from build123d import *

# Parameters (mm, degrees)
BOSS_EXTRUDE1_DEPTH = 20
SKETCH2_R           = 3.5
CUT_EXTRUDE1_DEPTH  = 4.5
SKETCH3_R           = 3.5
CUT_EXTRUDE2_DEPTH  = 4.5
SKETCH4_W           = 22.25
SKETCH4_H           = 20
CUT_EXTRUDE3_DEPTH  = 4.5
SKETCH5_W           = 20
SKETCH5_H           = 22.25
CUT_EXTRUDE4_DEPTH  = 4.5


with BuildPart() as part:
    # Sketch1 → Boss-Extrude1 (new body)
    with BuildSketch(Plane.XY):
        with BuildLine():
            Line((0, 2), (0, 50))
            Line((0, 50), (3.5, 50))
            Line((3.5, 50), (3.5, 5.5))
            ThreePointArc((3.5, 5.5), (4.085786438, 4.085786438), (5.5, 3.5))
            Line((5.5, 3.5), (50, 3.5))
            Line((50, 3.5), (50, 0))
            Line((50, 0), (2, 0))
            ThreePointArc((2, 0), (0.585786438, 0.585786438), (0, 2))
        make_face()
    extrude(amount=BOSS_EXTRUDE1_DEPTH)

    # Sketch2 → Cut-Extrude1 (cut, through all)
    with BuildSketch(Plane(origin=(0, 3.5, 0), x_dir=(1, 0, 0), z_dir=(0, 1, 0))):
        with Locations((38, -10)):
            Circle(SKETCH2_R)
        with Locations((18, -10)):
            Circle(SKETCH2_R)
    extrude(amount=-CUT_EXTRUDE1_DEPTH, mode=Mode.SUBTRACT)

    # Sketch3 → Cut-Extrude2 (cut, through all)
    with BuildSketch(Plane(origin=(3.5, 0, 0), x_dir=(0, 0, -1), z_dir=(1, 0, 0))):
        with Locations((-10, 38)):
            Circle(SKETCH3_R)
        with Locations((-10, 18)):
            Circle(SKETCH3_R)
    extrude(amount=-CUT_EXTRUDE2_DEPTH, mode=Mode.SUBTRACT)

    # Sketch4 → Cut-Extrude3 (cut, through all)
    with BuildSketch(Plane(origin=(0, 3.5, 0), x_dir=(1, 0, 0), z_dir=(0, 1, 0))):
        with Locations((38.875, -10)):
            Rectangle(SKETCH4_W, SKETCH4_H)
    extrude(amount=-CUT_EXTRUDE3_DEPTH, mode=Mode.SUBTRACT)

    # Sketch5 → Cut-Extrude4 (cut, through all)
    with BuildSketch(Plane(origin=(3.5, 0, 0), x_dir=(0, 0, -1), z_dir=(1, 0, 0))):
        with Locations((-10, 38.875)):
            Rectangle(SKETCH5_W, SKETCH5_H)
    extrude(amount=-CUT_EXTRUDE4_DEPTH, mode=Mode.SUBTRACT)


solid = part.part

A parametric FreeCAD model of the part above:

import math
import FreeCAD as App
import Part
import Sketcher


def add_polygon(sketch, points):
    """Adds a closed chain of lines whose ends are joined by coincident constraints."""
    first, n = sketch.GeometryCount, len(points)
    for a, b in zip(points, points[1:] + points[:1]):
        sketch.addGeometry(Part.LineSegment(App.Vector(*a, 0), App.Vector(*b, 0)), False)
    for i in range(n):
        sketch.addConstraint(Sketcher.Constraint("Coincident", first + i, 2, first + (i + 1) % n, 1))

doc = App.newDocument("Part")
body = doc.addObject("PartDesign::Body", "Body")

# Sketch on XY plane
sketch1 = body.newObject("Sketcher::SketchObject", "Sketch")
sketch1.AttachmentSupport = (doc.getObject("XY_Plane"), [""])
sketch1.MapMode = "FlatFace"
sketch1.addGeometry(Part.LineSegment(App.Vector(0, 50, 0), App.Vector(0, 2, 0)), False)
sketch1.addGeometry(Part.ArcOfCircle(Part.Circle(App.Vector(2, 2, 0), App.Vector(0, 0, 1), 2), math.radians(-180), math.radians(-90)), False)
sketch1.addGeometry(Part.LineSegment(App.Vector(2, 0, 0), App.Vector(50, 0, 0)), False)
sketch1.addGeometry(Part.LineSegment(App.Vector(50, 0, 0), App.Vector(50, 3.5, 0)), False)
sketch1.addGeometry(Part.LineSegment(App.Vector(50, 3.5, 0), App.Vector(5.5, 3.5, 0)), False)
sketch1.addGeometry(Part.ArcOfCircle(Part.Circle(App.Vector(5.5, 5.5, 0), App.Vector(0, 0, 1), 2), math.radians(-180), math.radians(-90)), False)
sketch1.addGeometry(Part.LineSegment(App.Vector(3.5, 5.5, 0), App.Vector(3.5, 50, 0)), False)
sketch1.addGeometry(Part.LineSegment(App.Vector(3.5, 50, 0), App.Vector(0, 50, 0)), False)
sketch1.addConstraint(Sketcher.Constraint("Tangent", 0, 2, 1, 1))
sketch1.addConstraint(Sketcher.Constraint("Tangent", 1, 2, 2, 1))
sketch1.addConstraint(Sketcher.Constraint("Coincident", 2, 2, 3, 1))
sketch1.addConstraint(Sketcher.Constraint("Coincident", 3, 2, 4, 1))
sketch1.addConstraint(Sketcher.Constraint("Tangent", 4, 2, 5, 2))
sketch1.addConstraint(Sketcher.Constraint("Tangent", 5, 1, 6, 1))
sketch1.addConstraint(Sketcher.Constraint("Coincident", 6, 2, 7, 1))
sketch1.addConstraint(Sketcher.Constraint("Coincident", 7, 2, 0, 1))
sketch1.addConstraint(Sketcher.Constraint("Vertical", 0))
sketch1.addConstraint(Sketcher.Constraint("Horizontal", 2))
sketch1.addConstraint(Sketcher.Constraint("Vertical", 3))
sketch1.addConstraint(Sketcher.Constraint("Horizontal", 4))
sketch1.addConstraint(Sketcher.Constraint("Vertical", 6))
sketch1.addConstraint(Sketcher.Constraint("Horizontal", 7))
sketch1.addConstraint(Sketcher.Constraint("Equal", 1, 5))
sketch1.addConstraint(Sketcher.Constraint("PointOnObject", 0, 2, -2))
sketch1.addConstraint(Sketcher.Constraint("PointOnObject", 1, 2, -1))
sketch1.addConstraint(Sketcher.Constraint("Equal", 2, 0))
sketch1.addConstraint(Sketcher.Constraint("Equal", 7, 3))
sketch1.addConstraint(Sketcher.Constraint("Radius", 1, 2.0))
sketch1.addConstraint(Sketcher.Constraint("DistanceX", 2, 1, 2, 2, 48.0))
sketch1.addConstraint(Sketcher.Constraint("DistanceX", 4, 2, 4, 1, 44.5))
pad1 = body.newObject("PartDesign::Pad", "Pad")
pad1.Profile = sketch1
pad1.Length = 20

# Sketch on XZ plane
sketch2 = body.newObject("Sketcher::SketchObject", "Sketch001")
sketch2.AttachmentSupport = (doc.getObject("XZ_Plane"), [""])
sketch2.MapMode = "FlatFace"
sketch2.AttachmentOffset = App.Placement(App.Vector(0, 0, -3.5), App.Rotation())
sketch2.addGeometry(Part.Circle(App.Vector(38, 10, 0), App.Vector(0, 0, 1), 3.5), False)
sketch2.addGeometry(Part.Circle(App.Vector(18, 10, 0), App.Vector(0, 0, 1), 3.5), False)
sketch2.addConstraint(Sketcher.Constraint("Equal", 0, 1))
sketch2.addConstraint(Sketcher.Constraint("Horizontal", 0, 3, 1, 3))
sketch2.addConstraint(Sketcher.Constraint("Diameter", 0, 7.0))
sketch2.addConstraint(Sketcher.Constraint("DistanceX", -1, 1, 0, 3, 38.0))
sketch2.addConstraint(Sketcher.Constraint("DistanceY", -1, 1, 0, 3, 10.0))
sketch2.addConstraint(Sketcher.Constraint("DistanceX", -1, 1, 1, 3, 18.0))
pocket1 = body.newObject("PartDesign::Pocket", "Pocket")
pocket1.Profile = sketch2
pocket1.Type = "ThroughAll"
pocket1.Reversed = True

# Sketch on YZ plane
sketch3 = body.newObject("Sketcher::SketchObject", "Sketch002")
sketch3.AttachmentSupport = (doc.getObject("YZ_Plane"), [""])
sketch3.MapMode = "FlatFace"
sketch3.AttachmentOffset = App.Placement(App.Vector(0, 0, 3.5), App.Rotation())
sketch3.addGeometry(Part.Circle(App.Vector(38, 10, 0), App.Vector(0, 0, 1), 3.5), False)
sketch3.addGeometry(Part.Circle(App.Vector(18, 10, 0), App.Vector(0, 0, 1), 3.5), False)
sketch3.addConstraint(Sketcher.Constraint("Equal", 0, 1))
sketch3.addConstraint(Sketcher.Constraint("Horizontal", 0, 3, 1, 3))
sketch3.addConstraint(Sketcher.Constraint("Diameter", 0, 7.0))
sketch3.addConstraint(Sketcher.Constraint("DistanceX", -1, 1, 0, 3, 38.0))
sketch3.addConstraint(Sketcher.Constraint("DistanceY", -1, 1, 0, 3, 10.0))
sketch3.addConstraint(Sketcher.Constraint("DistanceX", -1, 1, 1, 3, 18.0))
pocket2 = body.newObject("PartDesign::Pocket", "Pocket001")
pocket2.Profile = sketch3
pocket2.Type = "ThroughAll"

# Sketch on XZ plane
sketch4 = body.newObject("Sketcher::SketchObject", "Sketch003")
sketch4.AttachmentSupport = (doc.getObject("XZ_Plane"), [""])
sketch4.MapMode = "FlatFace"
sketch4.AttachmentOffset = App.Placement(App.Vector(0, 0, -3.5), App.Rotation())
add_polygon(sketch4, [(28, 0), (28, 20), (50, 20), (50, 0)])  # lines 0-3
sketch4.addConstraint(Sketcher.Constraint("Vertical", 0))
sketch4.addConstraint(Sketcher.Constraint("Horizontal", 1))
sketch4.addConstraint(Sketcher.Constraint("Vertical", 2))
sketch4.addConstraint(Sketcher.Constraint("Horizontal", 3))
sketch4.addConstraint(Sketcher.Constraint("PointOnObject", 2, 2, -1))
sketch4.addConstraint(Sketcher.Constraint("DistanceY", 0, 1, 0, 2, 20.0))
sketch4.addConstraint(Sketcher.Constraint("DistanceX", -1, 1, 1, 2, 50.0))
sketch4.addConstraint(Sketcher.Constraint("DistanceX", 1, 1, 1, 2, 22.25))
pocket3 = body.newObject("PartDesign::Pocket", "Pocket002")
pocket3.Profile = sketch4
pocket3.Type = "ThroughAll"
pocket3.Reversed = True

# Sketch on YZ plane
sketch5 = body.newObject("Sketcher::SketchObject", "Sketch004")
sketch5.AttachmentSupport = (doc.getObject("YZ_Plane"), [""])
sketch5.MapMode = "FlatFace"
sketch5.AttachmentOffset = App.Placement(App.Vector(0, 0, 3.5), App.Rotation())
add_polygon(sketch5, [(50, 20), (28, 20), (28, 0), (50, 0)])  # lines 0-3
sketch5.addConstraint(Sketcher.Constraint("Horizontal", 0))
sketch5.addConstraint(Sketcher.Constraint("Vertical", 1))
sketch5.addConstraint(Sketcher.Constraint("Horizontal", 2))
sketch5.addConstraint(Sketcher.Constraint("Vertical", 3))
sketch5.addConstraint(Sketcher.Constraint("PointOnObject", 1, 2, -1))
sketch5.addConstraint(Sketcher.Constraint("DistanceY", 1, 2, 1, 1, 20.0))
sketch5.addConstraint(Sketcher.Constraint("DistanceX", -1, 1, 2, 2, 50.0))
sketch5.addConstraint(Sketcher.Constraint("DistanceX", 0, 2, 0, 1, 22.25))
pocket4 = body.newObject("PartDesign::Pocket", "Pocket003")
pocket4.Profile = sketch5
pocket4.Type = "ThroughAll"

doc.recompute()
